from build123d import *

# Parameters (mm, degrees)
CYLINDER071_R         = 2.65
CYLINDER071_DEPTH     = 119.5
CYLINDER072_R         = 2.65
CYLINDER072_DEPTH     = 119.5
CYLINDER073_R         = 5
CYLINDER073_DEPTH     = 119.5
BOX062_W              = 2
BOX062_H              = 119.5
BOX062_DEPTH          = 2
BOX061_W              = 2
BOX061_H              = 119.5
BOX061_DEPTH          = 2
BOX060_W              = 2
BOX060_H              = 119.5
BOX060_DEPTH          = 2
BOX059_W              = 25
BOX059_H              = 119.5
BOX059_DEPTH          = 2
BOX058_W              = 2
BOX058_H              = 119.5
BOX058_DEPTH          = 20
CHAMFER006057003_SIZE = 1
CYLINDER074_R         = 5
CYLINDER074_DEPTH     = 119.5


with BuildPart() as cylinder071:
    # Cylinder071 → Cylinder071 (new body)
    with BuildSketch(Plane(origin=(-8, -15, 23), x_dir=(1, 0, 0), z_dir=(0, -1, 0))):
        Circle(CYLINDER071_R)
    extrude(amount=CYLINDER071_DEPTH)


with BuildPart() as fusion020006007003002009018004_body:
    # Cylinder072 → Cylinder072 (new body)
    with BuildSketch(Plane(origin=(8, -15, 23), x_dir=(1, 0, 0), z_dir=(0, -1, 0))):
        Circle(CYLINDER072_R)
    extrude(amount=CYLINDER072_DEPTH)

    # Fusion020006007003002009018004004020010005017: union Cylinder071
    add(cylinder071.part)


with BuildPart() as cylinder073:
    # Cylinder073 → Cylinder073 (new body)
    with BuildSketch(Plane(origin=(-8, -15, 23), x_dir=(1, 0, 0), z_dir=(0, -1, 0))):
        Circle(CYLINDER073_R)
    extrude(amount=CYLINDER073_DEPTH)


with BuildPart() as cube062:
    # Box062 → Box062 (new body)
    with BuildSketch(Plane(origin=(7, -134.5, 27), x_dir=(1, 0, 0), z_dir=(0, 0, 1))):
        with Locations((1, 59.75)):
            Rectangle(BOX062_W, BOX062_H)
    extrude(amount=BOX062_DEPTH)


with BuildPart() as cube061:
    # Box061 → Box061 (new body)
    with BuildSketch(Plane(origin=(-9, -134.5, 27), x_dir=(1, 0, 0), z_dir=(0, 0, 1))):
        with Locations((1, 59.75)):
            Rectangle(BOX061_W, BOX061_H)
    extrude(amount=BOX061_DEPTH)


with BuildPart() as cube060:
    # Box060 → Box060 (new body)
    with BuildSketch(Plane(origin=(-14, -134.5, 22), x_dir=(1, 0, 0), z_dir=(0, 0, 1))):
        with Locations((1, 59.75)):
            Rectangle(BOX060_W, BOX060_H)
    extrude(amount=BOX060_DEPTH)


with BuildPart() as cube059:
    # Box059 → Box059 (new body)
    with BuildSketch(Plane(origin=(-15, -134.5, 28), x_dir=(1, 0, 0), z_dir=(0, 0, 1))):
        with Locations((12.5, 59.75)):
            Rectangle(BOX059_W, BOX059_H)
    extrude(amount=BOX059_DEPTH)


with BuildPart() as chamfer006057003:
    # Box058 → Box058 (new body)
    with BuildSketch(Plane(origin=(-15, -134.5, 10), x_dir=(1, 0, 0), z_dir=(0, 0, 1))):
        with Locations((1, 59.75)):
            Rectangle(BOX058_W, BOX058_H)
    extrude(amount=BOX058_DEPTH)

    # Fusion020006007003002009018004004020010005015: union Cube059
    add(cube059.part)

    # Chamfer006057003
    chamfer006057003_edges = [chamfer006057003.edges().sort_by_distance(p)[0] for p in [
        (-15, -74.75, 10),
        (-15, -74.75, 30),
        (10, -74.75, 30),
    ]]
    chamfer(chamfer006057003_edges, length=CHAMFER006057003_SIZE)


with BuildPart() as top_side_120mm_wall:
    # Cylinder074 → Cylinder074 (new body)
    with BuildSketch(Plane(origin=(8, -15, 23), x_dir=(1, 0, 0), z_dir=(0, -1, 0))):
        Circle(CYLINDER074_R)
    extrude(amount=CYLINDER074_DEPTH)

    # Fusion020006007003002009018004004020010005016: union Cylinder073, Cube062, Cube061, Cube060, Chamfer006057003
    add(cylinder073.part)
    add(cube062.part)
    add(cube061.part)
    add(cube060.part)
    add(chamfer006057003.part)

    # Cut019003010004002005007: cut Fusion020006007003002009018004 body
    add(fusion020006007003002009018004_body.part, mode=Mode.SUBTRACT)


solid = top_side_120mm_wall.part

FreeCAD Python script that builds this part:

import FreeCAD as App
import Part
import Sketcher

V = App.Vector
Q = App.Units.Quantity


def edges_at(feature, points):
    """Names of the edges that pass closest to the given points."""
    edges = feature.Shape.Edges
    near = lambda p: min(range(len(edges)), key=lambda i: edges[i].distToShape(Part.Vertex(*p))[0])
    return sorted({f"Edge{near(p) + 1}" for p in points})

doc = App.newDocument("Part")
body = doc.addObject("PartDesign::Body", "Body")

# Sketch on XZ plane
sketch1 = doc.addObject("Sketcher::SketchObject", "Sketch")
body.addObject(sketch1)
sketch1.AttachmentSupport = (doc.XZ_Plane, [""])
sketch1.MapMode = "FlatFace"
sketch1.AttachmentOffset = App.Placement(V(0, 0, 15), App.Rotation())
sketch1.addGeometry(Part.Circle(V(-8, 23, 0), V(0, 0, 1), 2.6), False)
sketch1.addConstraint([
    Sketcher.Constraint("Diameter", 0, Q("5.3 mm")),
    Sketcher.Constraint("DistanceX", 0, 3, -1, 1, Q("8 mm")),
    Sketcher.Constraint("DistanceY", -1, 1, 0, 3, Q("23 mm")),
])
pad1 = doc.addObject("PartDesign::Pad", "Pad")
body.addObject(pad1)
pad1.Profile = sketch1
pad1.Length = 119.5
body2 = doc.addObject("PartDesign::Body", "Body001")
body2.AllowCompound = True

# Sketch on XZ plane
sketch2 = doc.addObject("Sketcher::SketchObject", "Sketch001")
body2.addObject(sketch2)
sketch2.AttachmentSupport = (doc.getObject("XZ_Plane001"), [""])
sketch2.MapMode = "FlatFace"
sketch2.AttachmentOffset = App.Placement(V(0, 0, 15), App.Rotation())
sketch2.addGeometry(Part.Circle(V(8, 23, 0), V(0, 0, 1), 2.6), False)
sketch2.addConstraint([
    Sketcher.Constraint("Diameter", 0, Q("5.3 mm")),
    Sketcher.Constraint("DistanceX", -1, 1, 0, 3, Q("8 mm")),
    Sketcher.Constraint("DistanceY", -1, 1, 0, 3, Q("23 mm")),
])
pad2 = doc.addObject("PartDesign::Pad", "Pad001")
body2.addObject(pad2)
pad2.Profile = sketch2
pad2.Length = 119.5
doc.recompute()

boolean = doc.addObject("PartDesign::Boolean", "Boolean")
body2.addObject(boolean)
boolean.Type = "Fuse"
boolean.addObjects([body])
body3 = doc.addObject("PartDesign::Body", "Body002")

# Sketch on XZ plane
sketch3 = doc.addObject("Sketcher::SketchObject", "Sketch002")
body3.addObject(sketch3)
sketch3.AttachmentSupport = (doc.getObject("XZ_Plane002"), [""])
sketch3.MapMode = "FlatFace"
sketch3.AttachmentOffset = App.Placement(V(0, 0, 15), App.Rotation())
sketch3.addGeometry(Part.Circle(V(-8, 23, 0), V(0, 0, 1), 5), False)
sketch3.addConstraint([
    Sketcher.Constraint("Diameter", 0, Q("10 mm")),
    Sketcher.Constraint("DistanceX", 0, 3, -1, 1, Q("8 mm")),
    Sketcher.Constraint("DistanceY", -1, 1, 0, 3, Q("23 mm")),
])
pad3 = doc.addObject("PartDesign::Pad", "Pad002")
body3.addObject(pad3)
pad3.Profile = sketch3
pad3.Length = 119.5
body4 = doc.addObject("PartDesign::Body", "Body003")

# Sketch on XY plane
sketch4 = doc.addObject("Sketcher::SketchObject", "Sketch003")
body4.addObject(sketch4)
sketch4.AttachmentSupport = (doc.getObject("XY_Plane003"), [""])
sketch4.MapMode = "FlatFace"
sketch4.AttachmentOffset = App.Placement(V(0, 0, 27), App.Rotation())
sketch4.addGeometry([
    Part.LineSegment(V(7, -15, 0), V(7, -134.5, 0)),
    Part.LineSegment(V(7, -134.5, 0), V(9, -134.5, 0)),
    Part.LineSegment(V(9, -134.5, 0), V(9, -15, 0)),
    Part.LineSegment(V(9, -15, 0), V(7, -15, 0)),
], False)
sketch4.addConstraint([
    Sketcher.Constraint("Coincident", 0, 2, 1, 1),
    Sketcher.Constraint("Coincident", 1, 2, 2, 1),
    Sketcher.Constraint("Coincident", 2, 2, 3, 1),
    Sketcher.Constraint("Coincident", 3, 2, 0, 1),
    Sketcher.Constraint("Vertical", 0),
    Sketcher.Constraint("Horizontal", 1),
    Sketcher.Constraint("Vertical", 2),
    Sketcher.Constraint("Horizontal", 3),
    Sketcher.Constraint("DistanceX", 1, 1, 1, 2, Q("2 mm")),
    Sketcher.Constraint("DistanceY", 0, 2, 0, 1, Q("119.5 mm")),
    Sketcher.Constraint("DistanceX", -1, 1, 0, 2, Q("7 mm")),
    Sketcher.Constraint("DistanceY", 2, 2, -1, 1, Q("15 mm")),
])
pad4 = doc.addObject("PartDesign::Pad", "Pad003")
body4.addObject(pad4)
pad4.Profile = sketch4
pad4.Length = 2
body5 = doc.addObject("PartDesign::Body", "Body004")

# Sketch on XY plane
sketch5 = doc.addObject("Sketcher::SketchObject", "Sketch004")
body5.addObject(sketch5)
sketch5.AttachmentSupport = (doc.getObject("XY_Plane004"), [""])
sketch5.MapMode = "FlatFace"
sketch5.AttachmentOffset = App.Placement(V(0, 0, 27), App.Rotation())
sketch5.addGeometry([
    Part.LineSegment(V(-9, -15, 0), V(-9, -134.5, 0)),
    Part.LineSegment(V(-9, -134.5, 0), V(-7, -134.5, 0)),
    Part.LineSegment(V(-7, -134.5, 0), V(-7, -15, 0)),
    Part.LineSegment(V(-7, -15, 0), V(-9, -15, 0)),
], False)
sketch5.addConstraint([
    Sketcher.Constraint("Coincident", 0, 2, 1, 1),
    Sketcher.Constraint("Coincident", 1, 2, 2, 1),
    Sketcher.Constraint("Coincident", 2, 2, 3, 1),
    Sketcher.Constraint("Coincident", 3, 2, 0, 1),
    Sketcher.Constraint("Vertical", 0),
    Sketcher.Constraint("Horizontal", 1),
    Sketcher.Constraint("Vertical", 2),
    Sketcher.Constraint("Horizontal", 3),
    Sketcher.Constraint("DistanceX", 1, 1, 1, 2, Q("2 mm")),
    Sketcher.Constraint("DistanceY", 0, 2, 0, 1, Q("119.5 mm")),
    Sketcher.Constraint("DistanceX", 0, 2, -1, 1, Q("9 mm")),
    Sketcher.Constraint("DistanceY", 2, 2, -1, 1, Q("15 mm")),
])
pad5 = doc.addObject("PartDesign::Pad", "Pad004")
body5.addObject(pad5)
pad5.Profile = sketch5
pad5.Length = 2
body6 = doc.addObject("PartDesign::Body", "Body005")

# Sketch on XY plane
sketch6 = doc.addObject("Sketcher::SketchObject", "Sketch005")
body6.addObject(sketch6)
sketch6.AttachmentSupport = (doc.getObject("XY_Plane005"), [""])
sketch6.MapMode = "FlatFace"
sketch6.AttachmentOffset = App.Placement(V(0, 0, 22), App.Rotation())
sketch6.addGeometry([
    Part.LineSegment(V(-14, -15, 0), V(-14, -134.5, 0)),
    Part.LineSegment(V(-14, -134.5, 0), V(-12, -134.5, 0)),
    Part.LineSegment(V(-12, -134.5, 0), V(-12, -15, 0)),
    Part.LineSegment(V(-12, -15, 0), V(-14, -15, 0)),
], False)
sketch6.addConstraint([
    Sketcher.Constraint("Coincident", 0, 2, 1, 1),
    Sketcher.Constraint("Coincident", 1, 2, 2, 1),
    Sketcher.Constraint("Coincident", 2, 2, 3, 1),
    Sketcher.Constraint("Coincident", 3, 2, 0, 1),
    Sketcher.Constraint("Vertical", 0),
    Sketcher.Constraint("Horizontal", 1),
    Sketcher.Constraint("Vertical", 2),
    Sketcher.Constraint("Horizontal", 3),
    Sketcher.Constraint("DistanceX", 1, 1, 1, 2, Q("2 mm")),
    Sketcher.Constraint("DistanceY", 0, 2, 0, 1, Q("119.5 mm")),
    Sketcher.Constraint("DistanceX", 0, 2, -1, 1, Q("14 mm")),
    Sketcher.Constraint("DistanceY", 2, 2, -1, 1, Q("15 mm")),
])
pad6 = doc.addObject("PartDesign::Pad", "Pad005")
body6.addObject(pad6)
pad6.Profile = sketch6
pad6.Length = 2
body7 = doc.addObject("PartDesign::Body", "Body006")

# Sketch on XY plane
sketch7 = doc.addObject("Sketcher::SketchObject", "Sketch006")
body7.addObject(sketch7)
sketch7.AttachmentSupport = (doc.getObject("XY_Plane006"), [""])
sketch7.MapMode = "FlatFace"
sketch7.AttachmentOffset = App.Placement(V(0, 0, 28), App.Rotation())
sketch7.addGeometry([
    Part.LineSegment(V(-15, -15, 0), V(-15, -134, 0)),
    Part.LineSegment(V(-15, -134, 0), V(10, -134, 0)),
    Part.LineSegment(V(10, -134, 0), V(10, -15, 0)),
    Part.LineSegment(V(10, -15, 0), V(-15, -15, 0)),
], False)
sketch7.addConstraint([
    Sketcher.Constraint("Coincident", 0, 2, 1, 1),
    Sketcher.Constraint("Coincident", 1, 2, 2, 1),
    Sketcher.Constraint("Coincident", 2, 2, 3, 1),
    Sketcher.Constraint("Coincident", 3, 2, 0, 1),
    Sketcher.Constraint("Vertical", 0),
    Sketcher.Constraint("Horizontal", 1),
    Sketcher.Constraint("Vertical", 2),
    Sketcher.Constraint("Horizontal", 3),
    Sketcher.Constraint("DistanceX", 1, 1, 1, 2, Q("25 mm")),
    Sketcher.Constraint("DistanceY", 0, 2, 0, 1, Q("119.5 mm")),
    Sketcher.Constraint("DistanceX", 0, 2, -1, 1, Q("15 mm")),
    Sketcher.Constraint("DistanceY", 2, 2, -1, 1, Q("15 mm")),
])
pad7 = doc.addObject("PartDesign::Pad", "Pad006")
body7.addObject(pad7)
pad7.Profile = sketch7
pad7.Length = 2
body8 = doc.addObject("PartDesign::Body", "Body007")

# Sketch on XY plane
sketch8 = doc.addObject("Sketcher::SketchObject", "Sketch007")
body8.addObject(sketch8)
sketch8.AttachmentSupport = (doc.getObject("XY_Plane007"), [""])
sketch8.MapMode = "FlatFace"
sketch8.AttachmentOffset = App.Placement(V(0, 0, 10), App.Rotation())
sketch8.addGeometry([
    Part.LineSegment(V(-15, -15, 0), V(-15, -134.5, 0)),
    Part.LineSegment(V(-15, -134.5, 0), V(-13, -134.5, 0)),
    Part.LineSegment(V(-13, -134.5, 0), V(-13, -15, 0)),
    Part.LineSegment(V(-13, -15, 0), V(-15, -15, 0)),
], False)
sketch8.addConstraint([
    Sketcher.Constraint("Coincident", 0, 2, 1, 1),
    Sketcher.Constraint("Coincident", 1, 2, 2, 1),
    Sketcher.Constraint("Coincident", 2, 2, 3, 1),
    Sketcher.Constraint("Coincident", 3, 2, 0, 1),
    Sketcher.Constraint("Vertical", 0),
    Sketcher.Constraint("Horizontal", 1),
    Sketcher.Constraint("Vertical", 2),
    Sketcher.Constraint("Horizontal", 3),
    Sketcher.Constraint("DistanceX", 1, 1, 1, 2, Q("2 mm")),
    Sketcher.Constraint("DistanceY", 0, 2, 0, 1, Q("119.5 mm")),
    Sketcher.Constraint("DistanceX", 0, 2, -1, 1, Q("15 mm")),
    Sketcher.Constraint("DistanceY", 2, 2, -1, 1, Q("15 mm")),
])
pad8 = doc.addObject("PartDesign::Pad", "Pad007")
body8.addObject(pad8)
pad8.Profile = sketch8
pad8.Length = 20
doc.recompute()

boolean2 = doc.addObject("PartDesign::Boolean", "Boolean001")
body8.addObject(boolean2)
boolean2.Type = "Fuse"
boolean2.addObjects([body7])
doc.recompute()

chamfer = doc.addObject("PartDesign::Chamfer", "Chamfer")
body8.addObject(chamfer)
chamfer.Base = (boolean2, edges_at(boolean2, [(-15, -74.75, 10), (-15, -74.75, 30), (10, -74.75, 30)]))
chamfer.Size = 1
body9 = doc.addObject("PartDesign::Body", "Body008")
body9.AllowCompound = True

# Sketch on XZ plane
sketch9 = doc.addObject("Sketcher::SketchObject", "Sketch008")
body9.addObject(sketch9)
sketch9.AttachmentSupport = (doc.getObject("XZ_Plane008"), [""])
sketch9.MapMode = "FlatFace"
sketch9.AttachmentOffset = App.Placement(V(0, 0, 15), App.Rotation())
sketch9.addGeometry(Part.Circle(V(8, 23, 0), V(0, 0, 1), 5), False)
sketch9.addConstraint([
    Sketcher.Constraint("Diameter", 0, Q("10 mm")),
    Sketcher.Constraint("DistanceX", -1, 1, 0, 3, Q("8 mm")),
    Sketcher.Constraint("DistanceY", -1, 1, 0, 3, Q("23 mm")),
])
pad9 = doc.addObject("PartDesign::Pad", "Pad008")
body9.addObject(pad9)
pad9.Profile = sketch9
pad9.Length = 119.5
doc.recompute()

boolean3 = doc.addObject("PartDesign::Boolean", "Boolean002")
body9.addObject(boolean3)
boolean3.Type = "Fuse"
boolean3.addObjects([body3])
doc.recompute()

boolean4 = doc.addObject("PartDesign::Boolean", "Boolean003")
body9.addObject(boolean4)
boolean4.Type = "Fuse"
boolean4.addObjects([body4])
doc.recompute()

boolean5 = doc.addObject("PartDesign::Boolean", "Boolean004")
body9.addObject(boolean5)
boolean5.Type = "Fuse"
boolean5.addObjects([body5])
doc.recompute()

boolean6 = doc.addObject("PartDesign::Boolean", "Boolean005")
body9.addObject(boolean6)
boolean6.Type = "Fuse"
boolean6.addObjects([body6])
doc.recompute()

boolean7 = doc.addObject("PartDesign::Boolean", "Boolean006")
body9.addObject(boolean7)
boolean7.Type = "Fuse"
boolean7.addObjects([body8])
doc.recompute()

boolean8 = doc.addObject("PartDesign::Boolean", "Boolean007")
body9.addObject(boolean8)
boolean8.Type = "Cut"
boolean8.addObjects([body2])

doc.recompute()
